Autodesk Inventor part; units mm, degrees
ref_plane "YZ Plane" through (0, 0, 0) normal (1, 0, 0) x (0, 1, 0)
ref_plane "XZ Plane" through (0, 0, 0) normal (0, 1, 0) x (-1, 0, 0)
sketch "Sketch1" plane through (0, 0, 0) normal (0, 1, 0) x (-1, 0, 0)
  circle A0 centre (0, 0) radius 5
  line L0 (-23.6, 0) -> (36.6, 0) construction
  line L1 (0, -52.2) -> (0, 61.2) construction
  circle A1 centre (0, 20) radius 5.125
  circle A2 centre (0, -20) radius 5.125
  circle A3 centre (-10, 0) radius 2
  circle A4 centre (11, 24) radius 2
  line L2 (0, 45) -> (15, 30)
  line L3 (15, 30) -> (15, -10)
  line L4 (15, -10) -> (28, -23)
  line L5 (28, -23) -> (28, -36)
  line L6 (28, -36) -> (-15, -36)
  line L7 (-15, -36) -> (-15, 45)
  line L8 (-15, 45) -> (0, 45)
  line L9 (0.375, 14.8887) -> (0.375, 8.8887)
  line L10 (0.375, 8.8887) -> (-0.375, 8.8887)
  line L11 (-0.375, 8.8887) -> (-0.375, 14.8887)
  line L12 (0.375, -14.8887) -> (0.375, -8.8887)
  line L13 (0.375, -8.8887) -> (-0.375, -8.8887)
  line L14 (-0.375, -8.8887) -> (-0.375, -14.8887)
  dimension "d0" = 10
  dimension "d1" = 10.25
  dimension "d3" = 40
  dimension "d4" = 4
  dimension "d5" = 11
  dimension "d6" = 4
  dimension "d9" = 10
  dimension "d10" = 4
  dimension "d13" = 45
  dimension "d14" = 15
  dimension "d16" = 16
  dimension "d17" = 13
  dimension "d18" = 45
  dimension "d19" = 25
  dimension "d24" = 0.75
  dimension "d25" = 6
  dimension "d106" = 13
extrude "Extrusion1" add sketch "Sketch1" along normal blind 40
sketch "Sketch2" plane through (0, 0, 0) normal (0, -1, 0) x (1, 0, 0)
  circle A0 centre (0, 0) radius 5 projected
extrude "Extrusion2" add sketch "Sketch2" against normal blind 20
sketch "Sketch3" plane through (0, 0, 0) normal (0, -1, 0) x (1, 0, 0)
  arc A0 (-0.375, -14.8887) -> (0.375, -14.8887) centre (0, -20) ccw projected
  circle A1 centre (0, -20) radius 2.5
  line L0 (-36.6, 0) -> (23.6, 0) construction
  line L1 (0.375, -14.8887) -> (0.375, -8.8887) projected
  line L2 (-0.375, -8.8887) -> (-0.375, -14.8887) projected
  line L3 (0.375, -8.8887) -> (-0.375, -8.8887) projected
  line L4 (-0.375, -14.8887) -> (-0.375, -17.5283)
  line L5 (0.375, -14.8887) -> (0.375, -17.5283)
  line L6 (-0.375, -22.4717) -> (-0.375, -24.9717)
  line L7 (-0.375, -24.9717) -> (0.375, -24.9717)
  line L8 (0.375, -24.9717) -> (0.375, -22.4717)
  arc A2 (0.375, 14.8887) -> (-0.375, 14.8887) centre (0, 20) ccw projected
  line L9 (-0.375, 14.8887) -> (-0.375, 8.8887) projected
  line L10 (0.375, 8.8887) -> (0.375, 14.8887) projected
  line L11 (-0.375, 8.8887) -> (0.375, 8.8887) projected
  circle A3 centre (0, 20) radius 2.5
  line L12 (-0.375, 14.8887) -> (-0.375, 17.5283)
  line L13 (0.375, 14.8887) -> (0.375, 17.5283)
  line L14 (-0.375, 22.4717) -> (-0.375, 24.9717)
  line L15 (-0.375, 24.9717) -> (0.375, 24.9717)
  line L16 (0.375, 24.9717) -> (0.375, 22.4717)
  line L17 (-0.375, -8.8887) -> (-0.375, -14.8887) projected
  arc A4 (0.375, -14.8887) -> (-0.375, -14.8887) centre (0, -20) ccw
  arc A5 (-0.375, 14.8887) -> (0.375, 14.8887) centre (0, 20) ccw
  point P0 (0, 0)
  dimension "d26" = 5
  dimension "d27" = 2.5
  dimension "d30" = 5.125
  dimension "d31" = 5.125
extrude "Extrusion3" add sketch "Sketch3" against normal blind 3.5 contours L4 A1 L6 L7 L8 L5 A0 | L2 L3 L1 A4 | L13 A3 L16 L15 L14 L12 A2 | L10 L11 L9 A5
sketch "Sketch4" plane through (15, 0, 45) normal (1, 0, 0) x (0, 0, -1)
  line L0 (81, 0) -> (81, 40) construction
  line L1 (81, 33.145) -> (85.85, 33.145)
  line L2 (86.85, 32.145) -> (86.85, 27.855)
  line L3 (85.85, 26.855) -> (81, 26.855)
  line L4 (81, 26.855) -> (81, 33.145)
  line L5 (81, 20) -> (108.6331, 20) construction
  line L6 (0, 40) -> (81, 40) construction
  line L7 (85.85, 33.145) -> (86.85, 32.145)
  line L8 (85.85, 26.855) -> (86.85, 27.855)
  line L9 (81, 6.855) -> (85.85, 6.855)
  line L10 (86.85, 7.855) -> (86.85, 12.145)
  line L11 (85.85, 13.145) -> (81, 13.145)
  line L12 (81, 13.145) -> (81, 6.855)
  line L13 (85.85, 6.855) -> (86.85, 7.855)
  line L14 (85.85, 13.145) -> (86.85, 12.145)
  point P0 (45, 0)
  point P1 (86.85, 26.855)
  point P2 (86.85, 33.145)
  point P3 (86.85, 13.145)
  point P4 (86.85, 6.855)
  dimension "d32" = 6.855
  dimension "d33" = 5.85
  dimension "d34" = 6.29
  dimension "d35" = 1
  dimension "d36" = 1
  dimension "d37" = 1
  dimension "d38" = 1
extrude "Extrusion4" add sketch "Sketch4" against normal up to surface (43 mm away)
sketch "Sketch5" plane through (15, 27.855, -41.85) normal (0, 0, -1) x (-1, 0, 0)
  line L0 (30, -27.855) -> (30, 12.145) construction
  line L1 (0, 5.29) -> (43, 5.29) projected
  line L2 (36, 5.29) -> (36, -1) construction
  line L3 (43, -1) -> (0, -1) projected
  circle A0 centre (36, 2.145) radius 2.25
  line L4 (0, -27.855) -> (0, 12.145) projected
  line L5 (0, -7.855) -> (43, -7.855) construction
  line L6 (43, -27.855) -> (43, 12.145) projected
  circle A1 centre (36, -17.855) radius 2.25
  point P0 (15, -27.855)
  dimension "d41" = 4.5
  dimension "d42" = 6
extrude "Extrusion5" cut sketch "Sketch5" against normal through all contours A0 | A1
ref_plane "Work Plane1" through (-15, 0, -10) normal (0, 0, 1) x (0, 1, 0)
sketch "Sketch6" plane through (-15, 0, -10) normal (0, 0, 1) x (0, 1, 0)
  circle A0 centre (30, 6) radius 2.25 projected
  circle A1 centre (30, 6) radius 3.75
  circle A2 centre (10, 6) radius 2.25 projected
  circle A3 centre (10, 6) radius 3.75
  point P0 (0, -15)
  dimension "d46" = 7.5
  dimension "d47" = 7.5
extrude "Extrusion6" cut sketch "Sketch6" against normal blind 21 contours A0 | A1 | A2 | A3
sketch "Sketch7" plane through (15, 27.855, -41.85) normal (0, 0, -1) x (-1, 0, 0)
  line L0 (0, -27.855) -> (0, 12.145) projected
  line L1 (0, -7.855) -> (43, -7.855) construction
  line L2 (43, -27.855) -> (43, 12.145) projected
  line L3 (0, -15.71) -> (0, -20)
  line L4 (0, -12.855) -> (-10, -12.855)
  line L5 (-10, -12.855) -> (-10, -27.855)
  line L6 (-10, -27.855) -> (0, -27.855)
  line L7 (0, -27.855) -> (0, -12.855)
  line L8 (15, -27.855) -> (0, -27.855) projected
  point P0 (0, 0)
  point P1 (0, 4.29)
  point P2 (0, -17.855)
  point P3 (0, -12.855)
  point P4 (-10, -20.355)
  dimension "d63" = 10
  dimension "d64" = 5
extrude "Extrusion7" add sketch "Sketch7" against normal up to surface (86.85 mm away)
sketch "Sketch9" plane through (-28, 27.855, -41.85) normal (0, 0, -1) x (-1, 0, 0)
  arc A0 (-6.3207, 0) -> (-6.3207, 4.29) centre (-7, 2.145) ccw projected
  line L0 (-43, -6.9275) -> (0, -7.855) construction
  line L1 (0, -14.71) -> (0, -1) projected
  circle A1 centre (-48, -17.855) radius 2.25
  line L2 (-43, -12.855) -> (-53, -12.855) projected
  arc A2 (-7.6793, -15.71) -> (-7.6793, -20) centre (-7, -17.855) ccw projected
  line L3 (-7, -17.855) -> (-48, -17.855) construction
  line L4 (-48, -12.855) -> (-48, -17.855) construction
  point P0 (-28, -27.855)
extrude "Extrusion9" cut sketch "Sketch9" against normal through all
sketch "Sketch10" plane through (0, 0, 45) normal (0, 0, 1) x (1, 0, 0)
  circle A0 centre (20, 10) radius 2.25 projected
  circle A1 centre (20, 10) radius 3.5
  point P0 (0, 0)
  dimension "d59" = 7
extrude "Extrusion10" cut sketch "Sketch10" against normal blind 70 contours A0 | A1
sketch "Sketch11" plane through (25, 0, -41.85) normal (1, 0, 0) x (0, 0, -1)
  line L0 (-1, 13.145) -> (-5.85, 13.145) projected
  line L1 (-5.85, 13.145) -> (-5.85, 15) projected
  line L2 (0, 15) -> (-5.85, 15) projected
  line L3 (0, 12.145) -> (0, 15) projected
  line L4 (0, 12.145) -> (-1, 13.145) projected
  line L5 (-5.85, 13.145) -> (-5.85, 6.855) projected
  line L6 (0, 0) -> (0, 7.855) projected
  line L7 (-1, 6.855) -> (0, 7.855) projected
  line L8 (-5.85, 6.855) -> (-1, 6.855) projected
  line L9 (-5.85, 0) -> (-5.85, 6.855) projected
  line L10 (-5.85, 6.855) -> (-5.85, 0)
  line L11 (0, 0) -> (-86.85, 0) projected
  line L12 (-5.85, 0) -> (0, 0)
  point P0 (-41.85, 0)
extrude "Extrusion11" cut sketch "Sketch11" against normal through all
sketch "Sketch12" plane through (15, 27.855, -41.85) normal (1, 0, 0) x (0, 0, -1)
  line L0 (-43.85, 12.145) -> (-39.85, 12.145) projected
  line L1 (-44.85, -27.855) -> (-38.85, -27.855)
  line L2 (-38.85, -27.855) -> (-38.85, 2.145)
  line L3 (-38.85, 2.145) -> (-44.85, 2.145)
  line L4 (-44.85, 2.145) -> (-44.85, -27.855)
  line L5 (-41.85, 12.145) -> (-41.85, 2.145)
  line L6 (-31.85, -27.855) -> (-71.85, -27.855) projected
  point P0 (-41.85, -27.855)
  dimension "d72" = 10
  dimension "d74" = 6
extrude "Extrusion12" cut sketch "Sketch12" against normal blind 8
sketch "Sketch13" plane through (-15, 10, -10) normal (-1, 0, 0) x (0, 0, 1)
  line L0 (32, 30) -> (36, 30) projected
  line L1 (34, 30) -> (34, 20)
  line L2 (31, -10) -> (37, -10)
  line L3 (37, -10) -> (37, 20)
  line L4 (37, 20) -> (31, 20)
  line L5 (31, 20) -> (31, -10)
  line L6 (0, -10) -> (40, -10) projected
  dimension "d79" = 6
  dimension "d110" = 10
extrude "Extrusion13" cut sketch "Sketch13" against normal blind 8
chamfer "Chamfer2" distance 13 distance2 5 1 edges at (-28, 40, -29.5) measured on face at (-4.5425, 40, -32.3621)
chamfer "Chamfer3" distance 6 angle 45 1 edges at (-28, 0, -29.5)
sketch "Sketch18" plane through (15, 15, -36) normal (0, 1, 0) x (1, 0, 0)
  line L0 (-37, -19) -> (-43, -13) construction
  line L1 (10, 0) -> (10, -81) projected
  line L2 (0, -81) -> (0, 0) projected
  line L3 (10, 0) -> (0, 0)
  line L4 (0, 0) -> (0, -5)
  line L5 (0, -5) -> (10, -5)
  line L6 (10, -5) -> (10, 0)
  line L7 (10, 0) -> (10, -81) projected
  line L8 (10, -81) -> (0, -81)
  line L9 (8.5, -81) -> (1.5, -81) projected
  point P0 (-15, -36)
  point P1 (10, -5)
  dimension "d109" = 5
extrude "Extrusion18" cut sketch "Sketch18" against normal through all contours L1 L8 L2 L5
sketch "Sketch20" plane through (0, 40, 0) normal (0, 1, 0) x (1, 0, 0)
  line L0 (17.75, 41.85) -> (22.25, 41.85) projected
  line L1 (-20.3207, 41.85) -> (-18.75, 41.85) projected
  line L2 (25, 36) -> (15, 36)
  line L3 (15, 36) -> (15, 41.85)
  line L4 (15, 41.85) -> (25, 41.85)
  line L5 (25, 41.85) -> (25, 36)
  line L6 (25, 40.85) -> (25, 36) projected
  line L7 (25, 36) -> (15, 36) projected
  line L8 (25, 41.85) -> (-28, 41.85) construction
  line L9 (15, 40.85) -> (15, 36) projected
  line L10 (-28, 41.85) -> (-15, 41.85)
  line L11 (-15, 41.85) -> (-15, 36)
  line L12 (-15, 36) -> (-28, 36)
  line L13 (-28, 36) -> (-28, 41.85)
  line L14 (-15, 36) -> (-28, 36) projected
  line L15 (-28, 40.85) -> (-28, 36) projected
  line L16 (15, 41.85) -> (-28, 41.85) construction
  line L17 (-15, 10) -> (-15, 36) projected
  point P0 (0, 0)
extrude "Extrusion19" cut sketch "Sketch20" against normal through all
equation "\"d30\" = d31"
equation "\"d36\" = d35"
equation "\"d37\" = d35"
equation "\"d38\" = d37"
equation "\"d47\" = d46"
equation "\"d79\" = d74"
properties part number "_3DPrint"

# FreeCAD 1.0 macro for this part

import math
import FreeCAD as App
import Part
import Sketcher
Q = App.Units.Quantity


def edges_at(feature, points):
    """Names of the edges that pass closest to the given points."""
    edges = feature.Shape.Edges
    near = lambda p: min(range(len(edges)), key=lambda i: edges[i].distToShape(Part.Vertex(*p))[0])
    return sorted({f"Edge{near(p) + 1}" for p in points})

doc = App.newDocument("Part")
params = doc.addObject("Spreadsheet::Sheet", "Params")
for row, (alias, value) in enumerate([
    ("sketch1_diameter", "4 mm"),
    ("sketch1_diameter2", "10 mm"),
    ("sketch1_width", "15 mm"),
    ("sketch1_height", "13 mm"),
    ("sketch1_height2", "40 mm"),
    ("pad1_length", "40 mm"),
    ("sketch2_diameter", "10 mm"),
    ("pad2_length", "20 mm"),
    ("sketch3_radius", "2.5 mm"),
    ("sketch3_height", "2.5 mm"),
    ("sketch3_height2", "6 mm"),
    ("sketch3_width", "0.75 mm"),
    ("pad3_length", "3.5 mm"),
    ("sketch4_width", "6.29 mm"),
    ("pad4_length", "43 mm"),
    ("sketch5_diameter", "4.5 mm"),
    ("sketch6_diameter", "7.5 mm"),
    ("pocket2_length", "21 mm"),
    ("sketch7_width", "10 mm"),
    ("sketch7_height", "15 mm"),
    ("pad5_length", "86.85 mm"),
    ("sketch8_diameter", "4.5 mm"),
    ("sketch9_diameter", "7 mm"),
    ("pocket4_length", "70 mm"),
    ("sketch10_height", "4.85 mm"),
    ("sketch11_height", "6 mm"),
    ("sketch11_width", "30 mm"),
    ("pocket6_length", "8 mm"),
    ("sketch12_height", "6 mm"),
    ("sketch12_width", "30 mm"),
    ("pocket7_length", "8 mm"),
    ("chamfer_size", "13 mm"),
    ("chamfer_size2", "5 mm"),
    ("chamfer2_size", "6 mm"),
    ("sketch13_width", "10 mm"),
    ("sketch13_height", "76 mm"),
    ("sketch14_width", "10 mm"),
    ("sketch14_width2", "13 mm"),
    ("sketch14_height", "5.85 mm"),
], start=1):
    params.set(f"A{row}", alias)
    params.set(f"B{row}", "=" + value)
    params.setAlias(f"B{row}", alias)

body = doc.addObject("PartDesign::Body", "Body")

sketch1 = doc.addObject("Sketcher::SketchObject", "Sketch")
body.addObject(sketch1)
sketch1.AttachmentSupport = (doc.XZ_Plane, [""])
sketch1.MapMode = "FlatFace"
sketch1.addGeometry(Part.LineSegment(App.Vector(-15, 30, 0), App.Vector(0, 45, 0)), False)
sketch1.addGeometry(Part.LineSegment(App.Vector(0, 45, 0), App.Vector(15, 45, 0)), False)
sketch1.addGeometry(Part.LineSegment(App.Vector(15, 45, 0), App.Vector(15, -36, 0)), False)
sketch1.addGeometry(Part.LineSegment(App.Vector(15, -36, 0), App.Vector(-28, -36, 0)), False)
sketch1.addGeometry(Part.LineSegment(App.Vector(-28, -36, 0), App.Vector(-28, -23, 0)), False)
sketch1.addGeometry(Part.LineSegment(App.Vector(-28, -23, 0), App.Vector(-15, -10, 0)), False)
sketch1.addGeometry(Part.LineSegment(App.Vector(-15, -10, 0), App.Vector(-15, 30, 0)), False)
sketch1.addGeometry(Part.ArcOfCircle(Part.Circle(App.Vector(0, -20, 0), App.Vector(0, 0, 1), 5.1), math.radians(94), math.radians(446)), False)
sketch1.addGeometry(Part.LineSegment(App.Vector(0.4, -14.9, 0), App.Vector(0.4, -8.9, 0)), False)
sketch1.addGeometry(Part.LineSegment(App.Vector(0.4, -8.9, 0), App.Vector(-0.4, -8.9, 0)), False)
sketch1.addGeometry(Part.LineSegment(App.Vector(-0.4, -8.9, 0), App.Vector(-0.4, -14.9, 0)), False)
sketch1.addGeometry(Part.Circle(App.Vector(10, 0, 0), App.Vector(0, 0, 1), 2), False)
sketch1.addGeometry(Part.Circle(App.Vector(0, 0, 0), App.Vector(0, 0, 1), 5), False)
sketch1.addGeometry(Part.ArcOfCircle(Part.Circle(App.Vector(0, 20, 0), App.Vector(0, 0, 1), 5.1), math.radians(-86), math.radians(266)), False)
sketch1.addGeometry(Part.LineSegment(App.Vector(-0.4, 14.9, 0), App.Vector(-0.4, 8.9, 0)), False)
sketch1.addGeometry(Part.LineSegment(App.Vector(-0.4, 8.9, 0), App.Vector(0.4, 8.9, 0)), False)
sketch1.addGeometry(Part.LineSegment(App.Vector(0.4, 8.9, 0), App.Vector(0.4, 14.9, 0)), False)
sketch1.addGeometry(Part.Circle(App.Vector(-11, 24, 0), App.Vector(0, 0, 1), 2), False)
sketch1.addConstraint(Sketcher.Constraint("Coincident", 0, 2, 1, 1))
sketch1.addConstraint(Sketcher.Constraint("Coincident", 1, 2, 2, 1))
sketch1.addConstraint(Sketcher.Constraint("Coincident", 2, 2, 3, 1))
sketch1.addConstraint(Sketcher.Constraint("Coincident", 3, 2, 4, 1))
sketch1.addConstraint(Sketcher.Constraint("Coincident", 4, 2, 5, 1))
sketch1.addConstraint(Sketcher.Constraint("Coincident", 5, 2, 6, 1))
sketch1.addConstraint(Sketcher.Constraint("Coincident", 6, 2, 0, 1))
sketch1.addConstraint(Sketcher.Constraint("Coincident", 7, 2, 8, 1))
sketch1.addConstraint(Sketcher.Constraint("Coincident", 8, 2, 9, 1))
sketch1.addConstraint(Sketcher.Constraint("Coincident", 9, 2, 10, 1))
sketch1.addConstraint(Sketcher.Constraint("Coincident", 10, 2, 7, 1))
sketch1.addConstraint(Sketcher.Constraint("Coincident", 13, 2, 14, 1))
sketch1.addConstraint(Sketcher.Constraint("Coincident", 14, 2, 15, 1))
sketch1.addConstraint(Sketcher.Constraint("Coincident", 15, 2, 16, 1))
sketch1.addConstraint(Sketcher.Constraint("Coincident", 16, 2, 13, 1))
sketch1.addConstraint(Sketcher.Constraint("Horizontal", 1))
sketch1.addConstraint(Sketcher.Constraint("Vertical", 2))
sketch1.addConstraint(Sketcher.Constraint("Horizontal", 3))
sketch1.addConstraint(Sketcher.Constraint("Vertical", 4))
sketch1.addConstraint(Sketcher.Constraint("Vertical", 6))
sketch1.addConstraint(Sketcher.Constraint("Vertical", 8))
sketch1.addConstraint(Sketcher.Constraint("Horizontal", 9))
sketch1.addConstraint(Sketcher.Constraint("Vertical", 10))
sketch1.addConstraint(Sketcher.Constraint("Vertical", 14))
sketch1.addConstraint(Sketcher.Constraint("Horizontal", 15))
sketch1.addConstraint(Sketcher.Constraint("Vertical", 16))
sketch1.addConstraint(Sketcher.Constraint("Coincident", 12, 3, -1, 1))
sketch1.addConstraint(Sketcher.Constraint("Equal", 7, 13))
sketch1.addConstraint(Sketcher.Constraint("Equal", 11, 17))
sketch1.addConstraint(Sketcher.Constraint("Symmetric", 7, 3, 13, 3, -1, 1))
sketch1.addConstraint(Sketcher.Constraint("Symmetric", 8, 2, 14, 2, -1, 1))
sketch1.addConstraint(Sketcher.Constraint("Symmetric", 7, 2, 10, 2, -2))
sketch1.addConstraint(Sketcher.Constraint("PointOnObject", 11, 3, -1))
sketch1.addConstraint(Sketcher.Constraint("PointOnObject", 0, 2, -2))
sketch1.addConstraint(Sketcher.Constraint("Parallel", 0, 5))
sketch1.addConstraint(Sketcher.Constraint("Horizontal", 13, 2, 16, 2))
sketch1.addConstraint(Sketcher.Constraint("Diameter", 11, Q("4 mm")))
sketch1.addConstraint(Sketcher.Constraint("Diameter", 12, Q("10 mm")))
sketch1.addConstraint(Sketcher.Constraint("DistanceX", 1, 1, 1, 2, Q("15 mm")))
sketch1.addConstraint(Sketcher.Constraint("DistanceY", 4, 1, 4, 2, Q("13 mm")))
sketch1.addConstraint(Sketcher.Constraint("DistanceY", 6, 1, 6, 2, Q("40 mm")))
sketch1.addConstraint(Sketcher.Constraint("DistanceY", 8, 1, 8, 2, Q("6 mm")))
sketch1.addConstraint(Sketcher.Constraint("Angle", 0, Q("45 deg")))
sketch1.addConstraint(Sketcher.Constraint("DistanceX", -1, 1, 11, 3, Q("10 mm")))
sketch1.addConstraint(Sketcher.Constraint("DistanceX", 17, 3, -1, 1, Q("11 mm")))
sketch1.addConstraint(Sketcher.Constraint("DistanceY", -1, 1, 0, 2, Q("45 mm")))
sketch1.addConstraint(Sketcher.Constraint("DistanceX", 5, 2, -1, 1, Q("15 mm")))
sketch1.addConstraint(Sketcher.Constraint("Radius", 7, Q("5.125 mm")))
sketch1.addConstraint(Sketcher.Constraint("DistanceY", 7, 3, 13, 3, Q("40 mm")))
sketch1.addConstraint(Sketcher.Constraint("DistanceY", 13, 3, 17, 3, Q("4 mm")))
sketch1.addConstraint(Sketcher.Constraint("DistanceY", 2, 2, 7, 3, Q("16 mm")))
sketch1.addConstraint(Sketcher.Constraint("DistanceX", 9, 2, 9, 1, Q("0.75 mm")))
sketch1.setExpression("Constraints[36]", "Params.sketch1_diameter")
sketch1.setExpression("Constraints[37]", "Params.sketch1_diameter2")
sketch1.setExpression("Constraints[38]", "Params.sketch1_width")
sketch1.setExpression("Constraints[39]", "Params.sketch1_height")
sketch1.setExpression("Constraints[40]", "Params.sketch1_height2")
pad1 = doc.addObject("PartDesign::Pad", "Pad")
body.addObject(pad1)
pad1.Profile = sketch1
pad1.setExpression("Length", "Params.pad1_length")
pad1.Reversed = True

sketch2 = doc.addObject("Sketcher::SketchObject", "Sketch001")
body.addObject(sketch2)
sketch2.AttachmentSupport = (doc.XZ_Plane, [""])
sketch2.MapMode = "FlatFace"
sketch2.addGeometry(Part.Circle(App.Vector(0, 0, 0), App.Vector(0, 0, 1), 5), False)
sketch2.addConstraint(Sketcher.Constraint("Coincident", 0, 3, -1, 1))
sketch2.addConstraint(Sketcher.Constraint("Diameter", 0, Q("10 mm")))
sketch2.setExpression("Constraints[1]", "Params.sketch2_diameter")
pad2 = doc.addObject("PartDesign::Pad", "Pad001")
body.addObject(pad2)
pad2.Profile = sketch2
pad2.setExpression("Length", "Params.pad2_length")
pad2.Reversed = True

sketch3 = doc.addObject("Sketcher::SketchObject", "Sketch002")
body.addObject(sketch3)
sketch3.AttachmentSupport = (doc.XZ_Plane, [""])
sketch3.MapMode = "FlatFace"
sketch3.addGeometry(Part.LineSegment(App.Vector(-0.4, -17.5, 0), App.Vector(-0.4, -14.9, 0)), False)
sketch3.addGeometry(Part.ArcOfCircle(Part.Circle(App.Vector(0, -20, 0), App.Vector(0, 0, 1), 5.1), math.radians(94), math.radians(446)), False)
sketch3.addGeometry(Part.LineSegment(App.Vector(0.4, -14.9, 0), App.Vector(0.4, -17.5, 0)), False)
sketch3.addGeometry(Part.ArcOfCircle(Part.Circle(App.Vector(0, -20, 0), App.Vector(0, 0, 1), 2.5), math.radians(-81), math.radians(81)), False)
sketch3.addGeometry(Part.LineSegment(App.Vector(0.4, -22.5, 0), App.Vector(0.4, -25, 0)), False)
sketch3.addGeometry(Part.LineSegment(App.Vector(0.4, -25, 0), App.Vector(-0.4, -25, 0)), False)
sketch3.addGeometry(Part.LineSegment(App.Vector(-0.4, -25, 0), App.Vector(-0.4, -22.5, 0)), False)
sketch3.addGeometry(Part.ArcOfCircle(Part.Circle(App.Vector(0, -20, 0), App.Vector(0, 0, 1), 2.5), math.radians(99), math.radians(261)), False)
sketch3.addGeometry(Part.LineSegment(App.Vector(-0.4, -8.9, 0), App.Vector(-0.4, -14.9, 0)), False)
sketch3.addGeometry(Part.ArcOfCircle(Part.Circle(App.Vector(0, -20, 0), App.Vector(0, 0, 1), 5.1), math.radians(85.8), math.radians(94.2)), False)
sketch3.addGeometry(Part.LineSegment(App.Vector(0.4, -14.9, 0), App.Vector(0.4, -8.9, 0)), False)
sketch3.addGeometry(Part.LineSegment(App.Vector(0.4, -8.9, 0), App.Vector(-0.4, -8.9, 0)), False)
sketch3.addGeometry(Part.LineSegment(App.Vector(0.4, 17.5, 0), App.Vector(0.4, 14.9, 0)), False)
sketch3.addGeometry(Part.ArcOfCircle(Part.Circle(App.Vector(0, 20, 0), App.Vector(0, 0, 1), 5.1), math.radians(-86), math.radians(266)), False)
sketch3.addGeometry(Part.LineSegment(App.Vector(-0.4, 14.9, 0), App.Vector(-0.4, 17.5, 0)), False)
sketch3.addGeometry(Part.ArcOfCircle(Part.Circle(App.Vector(0, 20, 0), App.Vector(0, 0, 1), 2.5), math.radians(99), math.radians(261)), False)
sketch3.addGeometry(Part.LineSegment(App.Vector(-0.4, 22.5, 0), App.Vector(-0.4, 25, 0)), False)
sketch3.addGeometry(Part.LineSegment(App.Vector(-0.4, 25, 0), App.Vector(0.4, 25, 0)), False)
sketch3.addGeometry(Part.LineSegment(App.Vector(0.4, 25, 0), App.Vector(0.4, 22.5, 0)), False)
sketch3.addGeometry(Part.ArcOfCircle(Part.Circle(App.Vector(0, 20, 0), App.Vector(0, 0, 1), 2.5), math.radians(-81), math.radians(81)), False)
sketch3.addGeometry(Part.LineSegment(App.Vector(0.4, 8.9, 0), App.Vector(0.4, 14.9, 0)), False)
sketch3.addGeometry(Part.ArcOfCircle(Part.Circle(App.Vector(0, 20, 0), App.Vector(0, 0, 1), 5.1), math.radians(-94.2), math.radians(-85.8)), False)
sketch3.addGeometry(Part.LineSegment(App.Vector(-0.4, 14.9, 0), App.Vector(-0.4, 8.9, 0)), False)
sketch3.addGeometry(Part.LineSegment(App.Vector(-0.4, 8.9, 0), App.Vector(0.4, 8.9, 0)), False)
sketch3.addConstraint(Sketcher.Constraint("Coincident", 0, 2, 1, 1))
sketch3.addConstraint(Sketcher.Constraint("Coincident", 1, 2, 2, 1))
sketch3.addConstraint(Sketcher.Constraint("Coincident", 2, 2, 3, 2))
sketch3.addConstraint(Sketcher.Constraint("Coincident", 3, 1, 4, 1))
sketch3.addConstraint(Sketcher.Constraint("Coincident", 4, 2, 5, 1))
sketch3.addConstraint(Sketcher.Constraint("Coincident", 5, 2, 6, 1))
sketch3.addConstraint(Sketcher.Constraint("Coincident", 6, 2, 7, 2))
sketch3.addConstraint(Sketcher.Constraint("Coincident", 7, 1, 0, 1))
sketch3.addConstraint(Sketcher.Constraint("Coincident", 8, 2, 9, 2))
sketch3.addConstraint(Sketcher.Constraint("Coincident", 9, 1, 10, 1))
sketch3.addConstraint(Sketcher.Constraint("Coincident", 10, 2, 11, 1))
sketch3.addConstraint(Sketcher.Constraint("Coincident", 11, 2, 8, 1))
sketch3.addConstraint(Sketcher.Constraint("Coincident", 12, 2, 13, 1))
sketch3.addConstraint(Sketcher.Constraint("Coincident", 13, 2, 14, 1))
sketch3.addConstraint(Sketcher.Constraint("Coincident", 14, 2, 15, 2))
sketch3.addConstraint(Sketcher.Constraint("Coincident", 15, 1, 16, 1))
sketch3.addConstraint(Sketcher.Constraint("Coincident", 16, 2, 17, 1))
sketch3.addConstraint(Sketcher.Constraint("Coincident", 17, 2, 18, 1))
sketch3.addConstraint(Sketcher.Constraint("Coincident", 18, 2, 19, 2))
sketch3.addConstraint(Sketcher.Constraint("Coincident", 19, 1, 12, 1))
sketch3.addConstraint(Sketcher.Constraint("Coincident", 20, 2, 21, 2))
sketch3.addConstraint(Sketcher.Constraint("Coincident", 21, 1, 22, 1))
sketch3.addConstraint(Sketcher.Constraint("Coincident", 22, 2, 23, 1))
sketch3.addConstraint(Sketcher.Constraint("Coincident", 23, 2, 20, 1))
sketch3.addConstraint(Sketcher.Constraint("Vertical", 0))
sketch3.addConstraint(Sketcher.Constraint("Vertical", 2))
sketch3.addConstraint(Sketcher.Constraint("Vertical", 4))
sketch3.addConstraint(Sketcher.Constraint("Horizontal", 5))
sketch3.addConstraint(Sketcher.Constraint("Vertical", 6))
sketch3.addConstraint(Sketcher.Constraint("Vertical", 8))
sketch3.addConstraint(Sketcher.Constraint("Vertical", 10))
sketch3.addConstraint(Sketcher.Constraint("Horizontal", 11))
sketch3.addConstraint(Sketcher.Constraint("Vertical", 12))
sketch3.addConstraint(Sketcher.Constraint("Vertical", 14))
sketch3.addConstraint(Sketcher.Constraint("Vertical", 16))
sketch3.addConstraint(Sketcher.Constraint("Horizontal", 17))
sketch3.addConstraint(Sketcher.Constraint("Vertical", 18))
sketch3.addConstraint(Sketcher.Constraint("Vertical", 20))
sketch3.addConstraint(Sketcher.Constraint("Vertical", 22))
sketch3.addConstraint(Sketcher.Constraint("Horizontal", 23))
sketch3.addConstraint(Sketcher.Constraint("Coincident", 3, 3, 1, 3))
sketch3.addConstraint(Sketcher.Constraint("Coincident", 7, 3, 1, 3))
sketch3.addConstraint(Sketcher.Constraint("Coincident", 9, 3, 1, 3))
sketch3.addConstraint(Sketcher.Constraint("Coincident", 15, 3, 13, 3))
sketch3.addConstraint(Sketcher.Constraint("Coincident", 19, 3, 13, 3))
sketch3.addConstraint(Sketcher.Constraint("Coincident", 21, 3, 13, 3))
sketch3.addConstraint(Sketcher.Constraint("Coincident", 8, 2, 0, 2))
sketch3.addConstraint(Sketcher.Constraint("Coincident", 20, 2, 12, 2))
sketch3.addConstraint(Sketcher.Constraint("Equal", 3, 7))
sketch3.addConstraint(Sketcher.Constraint("Equal", 9, 13))
sketch3.addConstraint(Sketcher.Constraint("Equal", 7, 15))
sketch3.addConstraint(Sketcher.Constraint("Equal", 15, 19))
sketch3.addConstraint(Sketcher.Constraint("Symmetric", 1, 3, 13, 3, -1, 1))
sketch3.addConstraint(Sketcher.Constraint("Symmetric", 4, 2, 16, 2, -1, 1))
sketch3.addConstraint(Sketcher.Constraint("Symmetric", 10, 2, 22, 2, -1, 1))
sketch3.addConstraint(Sketcher.Constraint("Symmetric", 0, 2, 1, 2, -2))
sketch3.addConstraint(Sketcher.Constraint("Horizontal", 3, 1, 6, 2))
sketch3.addConstraint(Sketcher.Constraint("Horizontal", 8, 2, 9, 1))
sketch3.addConstraint(Sketcher.Constraint("Horizontal", 12, 2, 13, 2))
sketch3.addConstraint(Sketcher.Constraint("Horizontal", 15, 1, 18, 2))
sketch3.addConstraint(Sketcher.Constraint("Horizontal", 20, 2, 21, 1))
sketch3.addConstraint(Sketcher.Constraint("Vertical", 2, 2, 3, 1))
sketch3.addConstraint(Sketcher.Constraint("Radius", 3, Q("2.5 mm")))
sketch3.addConstraint(Sketcher.Constraint("DistanceY", 4, 2, 4, 1, Q("2.5 mm")))
sketch3.addConstraint(Sketcher.Constraint("Radius", 1, Q("5.125 mm")))
sketch3.addConstraint(Sketcher.Constraint("DistanceY", 8, 2, 8, 1, Q("6 mm")))
sketch3.addConstraint(Sketcher.Constraint("DistanceY", 1, 3, -1, 1, Q("20 mm")))
sketch3.addConstraint(Sketcher.Constraint("DistanceX", 5, 2, 5, 1, Q("0.75 mm")))
sketch3.setExpression("Constraints[62]", "Params.sketch3_radius")
sketch3.setExpression("Constraints[63]", "Params.sketch3_height")
sketch3.setExpression("Constraints[65]", "Params.sketch3_height2")
sketch3.setExpression("Constraints[67]", "Params.sketch3_width")
pad3 = doc.addObject("PartDesign::Pad", "Pad002")
body.addObject(pad3)
pad3.Profile = sketch3
pad3.setExpression("Length", "Params.pad3_length")
pad3.Reversed = True

sketch4 = doc.addObject("Sketcher::SketchObject", "Sketch003")
body.addObject(sketch4)
sketch4.AttachmentSupport = (doc.YZ_Plane, [""])
sketch4.MapMode = "FlatFace"
sketch4.AttachmentOffset = App.Placement(App.Vector(0, 0, 15), App.Rotation())
sketch4.addGeometry(Part.LineSegment(App.Vector(33.1, -40.9, 0), App.Vector(33.1, -36, 0)), False)
sketch4.addGeometry(Part.LineSegment(App.Vector(33.1, -36, 0), App.Vector(26.9, -36, 0)), False)
sketch4.addGeometry(Part.LineSegment(App.Vector(26.9, -36, 0), App.Vector(26.9, -40.9, 0)), False)
sketch4.addGeometry(Part.LineSegment(App.Vector(26.9, -40.9, 0), App.Vector(27.9, -41.9, 0)), False)
sketch4.addGeometry(Part.LineSegment(App.Vector(27.9, -41.9, 0), App.Vector(32.1, -41.9, 0)), False)
sketch4.addGeometry(Part.LineSegment(App.Vector(32.1, -41.9, 0), App.Vector(33.1, -40.9, 0)), False)
sketch4.addGeometry(Part.LineSegment(App.Vector(13.1, -36, 0), App.Vector(6.9, -36, 0)), False)
sketch4.addGeometry(Part.LineSegment(App.Vector(6.9, -36, 0), App.Vector(6.9, -40.9, 0)), False)
sketch4.addGeometry(Part.LineSegment(App.Vector(6.9, -40.9, 0), App.Vector(7.9, -41.9, 0)), False)
sketch4.addGeometry(Part.LineSegment(App.Vector(7.9, -41.9, 0), App.Vector(12.1, -41.9, 0)), False)
sketch4.addGeometry(Part.LineSegment(App.Vector(12.1, -41.9, 0), App.Vector(13.1, -40.9, 0)), False)
sketch4.addGeometry(Part.LineSegment(App.Vector(13.1, -40.9, 0), App.Vector(13.1, -36, 0)), False)
sketch4.addConstraint(Sketcher.Constraint("Coincident", 0, 2, 1, 1))
sketch4.addConstraint(Sketcher.Constraint("Coincident", 1, 2, 2, 1))
sketch4.addConstraint(Sketcher.Constraint("Coincident", 2, 2, 3, 1))
sketch4.addConstraint(Sketcher.Constraint("Coincident", 3, 2, 4, 1))
sketch4.addConstraint(Sketcher.Constraint("Coincident", 4, 2, 5, 1))
sketch4.addConstraint(Sketcher.Constraint("Coincident", 5, 2, 0, 1))
sketch4.addConstraint(Sketcher.Constraint("Coincident", 6, 2, 7, 1))
sketch4.addConstraint(Sketcher.Constraint("Coincident", 7, 2, 8, 1))
sketch4.addConstraint(Sketcher.Constraint("Coincident", 8, 2, 9, 1))
sketch4.addConstraint(Sketcher.Constraint("Coincident", 9, 2, 10, 1))
sketch4.addConstraint(Sketcher.Constraint("Coincident", 10, 2, 11, 1))
sketch4.addConstraint(Sketcher.Constraint("Coincident", 11, 2, 6, 1))
sketch4.addConstraint(Sketcher.Constraint("Vertical", 0))
sketch4.addConstraint(Sketcher.Constraint("Horizontal", 1))
sketch4.addConstraint(Sketcher.Constraint("Vertical", 2))
sketch4.addConstraint(Sketcher.Constraint("Horizontal", 4))
sketch4.addConstraint(Sketcher.Constraint("Horizontal", 6))
sketch4.addConstraint(Sketcher.Constraint("Vertical", 7))
sketch4.addConstraint(Sketcher.Constraint("Horizontal", 9))
sketch4.addConstraint(Sketcher.Constraint("Vertical", 11))
sketch4.addConstraint(Sketcher.Constraint("Perpendicular", 3, 5))
sketch4.addConstraint(Sketcher.Constraint("Perpendicular", 5, 8))
sketch4.addConstraint(Sketcher.Constraint("Perpendicular", 8, 10))
sketch4.addConstraint(Sketcher.Constraint("Horizontal", 2, 2, 5, 2))
sketch4.addConstraint(Sketcher.Constraint("Horizontal", 1, 2, 6, 2))
sketch4.addConstraint(Sketcher.Constraint("Horizontal", 5, 2, 7, 2))
sketch4.addConstraint(Sketcher.Constraint("Horizontal", 4, 2, 8, 2))
sketch4.addConstraint(Sketcher.Constraint("Horizontal", 7, 2, 10, 2))
sketch4.addConstraint(Sketcher.Constraint("Equal", 1, 6))
sketch4.addConstraint(Sketcher.Constraint("Equal", 3, 5))
sketch4.addConstraint(Sketcher.Constraint("DistanceX", 2, 2, 3, 2, Q("1 mm")))
sketch4.addConstraint(Sketcher.Constraint("DistanceX", 1, 2, 1, 1, Q("6.29 mm")))
sketch4.addConstraint(Sketcher.Constraint("DistanceY", 3, 2, 1, 2, Q("5.85 mm")))
sketch4.addConstraint(Sketcher.Constraint("DistanceX", -1, 1, 6, 2, Q("6.855 mm")))
sketch4.addConstraint(Sketcher.Constraint("DistanceY", 0, 2, -1, 1, Q("36 mm")))
sketch4.addConstraint(Sketcher.Constraint("DistanceX", 6, 2, 1, 2, Q("20 mm")))
sketch4.setExpression("Constraints[31]", "Params.sketch4_width")
pad4 = doc.addObject("PartDesign::Pad", "Pad003")
body.addObject(pad4)
pad4.Profile = sketch4
pad4.setExpression("Length", "Params.pad4_length")
pad4.Reversed = True

sketch5 = doc.addObject("Sketcher::SketchObject", "Sketch004")
body.addObject(sketch5)
sketch5.AttachmentSupport = (doc.XY_Plane, [""])
sketch5.MapMode = "FlatFace"
sketch5.AttachmentOffset = App.Placement(App.Vector(0, 0, -41.85), App.Rotation())
sketch5.addGeometry(Part.Circle(App.Vector(-21, 30, 0), App.Vector(0, 0, 1), 2.2), False)
sketch5.addGeometry(Part.Circle(App.Vector(-21, 10, 0), App.Vector(0, 0, 1), 2.2), False)
sketch5.addConstraint(Sketcher.Constraint("Equal", 0, 1))
sketch5.addConstraint(Sketcher.Constraint("Vertical", 0, 3, 1, 3))
sketch5.addConstraint(Sketcher.Constraint("Diameter", 0, Q("4.5 mm")))
sketch5.addConstraint(Sketcher.Constraint("DistanceX", 0, 3, -1, 1, Q("21 mm")))
sketch5.addConstraint(Sketcher.Constraint("DistanceY", -1, 1, 0, 3, Q("30 mm")))
sketch5.addConstraint(Sketcher.Constraint("DistanceY", -1, 1, 1, 3, Q("10 mm")))
sketch5.setExpression("Constraints[2]", "Params.sketch5_diameter")
pocket1 = doc.addObject("PartDesign::Pocket", "Pocket")
body.addObject(pocket1)
pocket1.Profile = sketch5
pocket1.Type = "ThroughAll"
pocket1.Reversed = True

sketch6 = doc.addObject("Sketcher::SketchObject", "Sketch005")
body.addObject(sketch6)
sketch6.AttachmentSupport = (doc.XY_Plane, [""])
sketch6.MapMode = "FlatFace"
sketch6.AttachmentOffset = App.Placement(App.Vector(0, 0, -10), App.Rotation())
sketch6.addGeometry(Part.Circle(App.Vector(-21, 30, 0), App.Vector(0, 0, 1), 3.8), False)
sketch6.addGeometry(Part.Circle(App.Vector(-21, 10, 0), App.Vector(0, 0, 1), 3.8), False)
sketch6.addConstraint(Sketcher.Constraint("Equal", 0, 1))
sketch6.addConstraint(Sketcher.Constraint("Vertical", 0, 3, 1, 3))
sketch6.addConstraint(Sketcher.Constraint("Diameter", 0, Q("7.5 mm")))
sketch6.addConstraint(Sketcher.Constraint("DistanceX", 0, 3, -1, 1, Q("21 mm")))
sketch6.addConstraint(Sketcher.Constraint("DistanceY", -1, 1, 0, 3, Q("30 mm")))
sketch6.addConstraint(Sketcher.Constraint("DistanceY", -1, 1, 1, 3, Q("10 mm")))
sketch6.setExpression("Constraints[2]", "Params.sketch6_diameter")
pocket2 = doc.addObject("PartDesign::Pocket", "Pocket001")
body.addObject(pocket2)
pocket2.Profile = sketch6
pocket2.setExpression("Length", "Params.pocket2_length")

sketch7 = doc.addObject("Sketcher::SketchObject", "Sketch006")
body.addObject(sketch7)
sketch7.AttachmentSupport = (doc.XY_Plane, [""])
sketch7.MapMode = "FlatFace"
sketch7.AttachmentOffset = App.Placement(App.Vector(0, 0, -41.85), App.Rotation())
sketch7.addGeometry(Part.LineSegment(App.Vector(25, 0, 0), App.Vector(15, 0, 0)), False)
sketch7.addGeometry(Part.LineSegment(App.Vector(15, 0, 0), App.Vector(15, 15, 0)), False)
sketch7.addGeometry(Part.LineSegment(App.Vector(15, 15, 0), App.Vector(25, 15, 0)), False)
sketch7.addGeometry(Part.LineSegment(App.Vector(25, 15, 0), App.Vector(25, 0, 0)), False)
sketch7.addConstraint(Sketcher.Constraint("Coincident", 0, 2, 1, 1))
sketch7.addConstraint(Sketcher.Constraint("Coincident", 1, 2, 2, 1))
sketch7.addConstraint(Sketcher.Constraint("Coincident", 2, 2, 3, 1))
sketch7.addConstraint(Sketcher.Constraint("Coincident", 3, 2, 0, 1))
sketch7.addConstraint(Sketcher.Constraint("Horizontal", 0))
sketch7.addConstraint(Sketcher.Constraint("Vertical", 1))
sketch7.addConstraint(Sketcher.Constraint("Horizontal", 2))
sketch7.addConstraint(Sketcher.Constraint("Vertical", 3))
sketch7.addConstraint(Sketcher.Constraint("PointOnObject", 0, 2, -1))
sketch7.addConstraint(Sketcher.Constraint("DistanceX", 0, 2, 0, 1, Q("10 mm")))
sketch7.addConstraint(Sketcher.Constraint("DistanceY", 1, 1, 1, 2, Q("15 mm")))
sketch7.addConstraint(Sketcher.Constraint("DistanceX", -1, 1, 0, 2, Q("15 mm")))
sketch7.setExpression("Constraints[9]", "Params.sketch7_width")
sketch7.setExpression("Constraints[10]", "Params.sketch7_height")
pad5 = doc.addObject("PartDesign::Pad", "Pad004")
body.addObject(pad5)
pad5.Profile = sketch7
pad5.setExpression("Length", "Params.pad5_length")

sketch8 = doc.addObject("Sketcher::SketchObject", "Sketch007")
body.addObject(sketch8)
sketch8.AttachmentSupport = (doc.XY_Plane, [""])
sketch8.MapMode = "FlatFace"
sketch8.AttachmentOffset = App.Placement(App.Vector(0, 0, -41.85), App.Rotation())
sketch8.addGeometry(Part.Circle(App.Vector(20, 10, 0), App.Vector(0, 0, 1), 2.2), False)
sketch8.addConstraint(Sketcher.Constraint("Diameter", 0, Q("4.5 mm")))
sketch8.addConstraint(Sketcher.Constraint("DistanceX", -1, 1, 0, 3, Q("20 mm")))
sketch8.addConstraint(Sketcher.Constraint("DistanceY", -1, 1, 0, 3, Q("10 mm")))
sketch8.setExpression("Constraints[0]", "Params.sketch8_diameter")
pocket3 = doc.addObject("PartDesign::Pocket", "Pocket002")
body.addObject(pocket3)
pocket3.Profile = sketch8
pocket3.Type = "ThroughAll"
pocket3.Reversed = True

sketch9 = doc.addObject("Sketcher::SketchObject", "Sketch008")
body.addObject(sketch9)
sketch9.AttachmentSupport = (doc.XY_Plane, [""])
sketch9.MapMode = "FlatFace"
sketch9.AttachmentOffset = App.Placement(App.Vector(0, 0, 45), App.Rotation())
sketch9.addGeometry(Part.Circle(App.Vector(20, 10, 0), App.Vector(0, 0, 1), 3.5), False)
sketch9.addConstraint(Sketcher.Constraint("Diameter", 0, Q("7 mm")))
sketch9.addConstraint(Sketcher.Constraint("DistanceX", -1, 1, 0, 3, Q("20 mm")))
sketch9.addConstraint(Sketcher.Constraint("DistanceY", -1, 1, 0, 3, Q("10 mm")))
sketch9.setExpression("Constraints[0]", "Params.sketch9_diameter")
pocket4 = doc.addObject("PartDesign::Pocket", "Pocket003")
body.addObject(pocket4)
pocket4.Profile = sketch9
pocket4.setExpression("Length", "Params.pocket4_length")

sketch10 = doc.addObject("Sketcher::SketchObject", "Sketch009")
body.addObject(sketch10)
sketch10.AttachmentSupport = (doc.YZ_Plane, [""])
sketch10.MapMode = "FlatFace"
sketch10.AttachmentOffset = App.Placement(App.Vector(0, 0, 25), App.Rotation())
sketch10.addGeometry(Part.LineSegment(App.Vector(6.9, -40.9, 0), App.Vector(6.9, -36, 0)), False)
sketch10.addGeometry(Part.LineSegment(App.Vector(6.9, -36, 0), App.Vector(0, -36, 0)), False)
sketch10.addGeometry(Part.LineSegment(App.Vector(0, -36, 0), App.Vector(0, -41.9, 0)), False)
sketch10.addGeometry(Part.LineSegment(App.Vector(0, -41.9, 0), App.Vector(7.9, -41.9, 0)), False)
sketch10.addGeometry(Part.LineSegment(App.Vector(7.9, -41.9, 0), App.Vector(6.9, -40.9, 0)), False)
sketch10.addGeometry(Part.LineSegment(App.Vector(13.1, -36, 0), App.Vector(13.1, -40.9, 0)), False)
sketch10.addGeometry(Part.LineSegment(App.Vector(13.1, -40.9, 0), App.Vector(12.1, -41.9, 0)), False)
sketch10.addGeometry(Part.LineSegment(App.Vector(12.1, -41.9, 0), App.Vector(15, -41.9, 0)), False)
sketch10.addGeometry(Part.LineSegment(App.Vector(15, -41.9, 0), App.Vector(15, -36, 0)), False)
sketch10.addGeometry(Part.LineSegment(App.Vector(15, -36, 0), App.Vector(13.1, -36, 0)), False)
sketch10.addConstraint(Sketcher.Constraint("Coincident", 0, 2, 1, 1))
sketch10.addConstraint(Sketcher.Constraint("Coincident", 1, 2, 2, 1))
sketch10.addConstraint(Sketcher.Constraint("Coincident", 2, 2, 3, 1))
sketch10.addConstraint(Sketcher.Constraint("Coincident", 3, 2, 4, 1))
sketch10.addConstraint(Sketcher.Constraint("Coincident", 4, 2, 0, 1))
sketch10.addConstraint(Sketcher.Constraint("Coincident", 5, 2, 6, 1))
sketch10.addConstraint(Sketcher.Constraint("Coincident", 6, 2, 7, 1))
sketch10.addConstraint(Sketcher.Constraint("Coincident", 7, 2, 8, 1))
sketch10.addConstraint(Sketcher.Constraint("Coincident", 8, 2, 9, 1))
sketch10.addConstraint(Sketcher.Constraint("Coincident", 9, 2, 5, 1))
sketch10.addConstraint(Sketcher.Constraint("Vertical", 0))
sketch10.addConstraint(Sketcher.Constraint("Horizontal", 1))
sketch10.addConstraint(Sketcher.Constraint("Vertical", 2))
sketch10.addConstraint(Sketcher.Constraint("Horizontal", 3))
sketch10.addConstraint(Sketcher.Constraint("Vertical", 5))
sketch10.addConstraint(Sketcher.Constraint("Horizontal", 7))
sketch10.addConstraint(Sketcher.Constraint("Vertical", 8))
sketch10.addConstraint(Sketcher.Constraint("Horizontal", 9))
sketch10.addConstraint(Sketcher.Constraint("PointOnObject", 1, 2, -2))
sketch10.addConstraint(Sketcher.Constraint("Perpendicular", 4, 6))
sketch10.addConstraint(Sketcher.Constraint("Horizontal", 4, 2, 5, 2))
sketch10.addConstraint(Sketcher.Constraint("Horizontal", 3, 2, 6, 2))
sketch10.addConstraint(Sketcher.Constraint("Horizontal", 1, 2, 8, 2))
sketch10.addConstraint(Sketcher.Constraint("Equal", 4, 6))
sketch10.addConstraint(Sketcher.Constraint("DistanceY", 0, 2, -1, 1, Q("36 mm")))
sketch10.addConstraint(Sketcher.Constraint("DistanceX", -1, 1, 7, 2, Q("15 mm")))
sketch10.addConstraint(Sketcher.Constraint("DistanceX", 0, 2, 3, 2, Q("1 mm")))
sketch10.addConstraint(Sketcher.Constraint("DistanceY", 0, 1, 0, 2, Q("4.85 mm")))
sketch10.addConstraint(Sketcher.Constraint("DistanceX", 1, 2, 1, 1, Q("6.855 mm")))
sketch10.addConstraint(Sketcher.Constraint("DistanceX", 7, 1, 7, 2, Q("2.855 mm")))
sketch10.setExpression("Constraints[27]", "Params.sketch10_height")
pocket5 = doc.addObject("PartDesign::Pocket", "Pocket004")
body.addObject(pocket5)
pocket5.Profile = sketch10
pocket5.Type = "ThroughAll"

sketch11 = doc.addObject("Sketcher::SketchObject", "Sketch010")
body.addObject(sketch11)
sketch11.AttachmentSupport = (doc.YZ_Plane, [""])
sketch11.MapMode = "FlatFace"
sketch11.AttachmentOffset = App.Placement(App.Vector(0, 0, 15), App.Rotation())
sketch11.addGeometry(Part.LineSegment(App.Vector(30, 3, 0), App.Vector(0, 3, 0)), False)
sketch11.addGeometry(Part.LineSegment(App.Vector(0, 3, 0), App.Vector(0, -3, 0)), False)
sketch11.addGeometry(Part.LineSegment(App.Vector(0, -3, 0), App.Vector(30, -3, 0)), False)
sketch11.addGeometry(Part.LineSegment(App.Vector(30, -3, 0), App.Vector(30, 3, 0)), False)
sketch11.addConstraint(Sketcher.Constraint("Coincident", 0, 2, 1, 1))
sketch11.addConstraint(Sketcher.Constraint("Coincident", 1, 2, 2, 1))
sketch11.addConstraint(Sketcher.Constraint("Coincident", 2, 2, 3, 1))
sketch11.addConstraint(Sketcher.Constraint("Coincident", 3, 2, 0, 1))
sketch11.addConstraint(Sketcher.Constraint("Horizontal", 0))
sketch11.addConstraint(Sketcher.Constraint("Vertical", 1))
sketch11.addConstraint(Sketcher.Constraint("Horizontal", 2))
sketch11.addConstraint(Sketcher.Constraint("Vertical", 3))
sketch11.addConstraint(Sketcher.Constraint("Symmetric", 0, 2, 1, 2, -1, 1))
sketch11.addConstraint(Sketcher.Constraint("DistanceY", 1, 2, 1, 1, Q("6 mm")))
sketch11.addConstraint(Sketcher.Constraint("DistanceX", 0, 2, 0, 1, Q("30 mm")))
sketch11.setExpression("Constraints[9]", "Params.sketch11_height")
sketch11.setExpression("Constraints[10]", "Params.sketch11_width")
pocket6 = doc.addObject("PartDesign::Pocket", "Pocket005")
body.addObject(pocket6)
pocket6.Profile = sketch11
pocket6.setExpression("Length", "Params.pocket6_length")

sketch12 = doc.addObject("Sketcher::SketchObject", "Sketch011")
body.addObject(sketch12)
sketch12.AttachmentSupport = (doc.YZ_Plane, [""])
sketch12.MapMode = "FlatFace"
sketch12.AttachmentOffset = App.Placement(App.Vector(0, 0, -15), App.Rotation())
sketch12.addGeometry(Part.LineSegment(App.Vector(30, 21, 0), App.Vector(0, 21, 0)), False)
sketch12.addGeometry(Part.LineSegment(App.Vector(0, 21, 0), App.Vector(0, 27, 0)), False)
sketch12.addGeometry(Part.LineSegment(App.Vector(0, 27, 0), App.Vector(30, 27, 0)), False)
sketch12.addGeometry(Part.LineSegment(App.Vector(30, 27, 0), App.Vector(30, 21, 0)), False)
sketch12.addConstraint(Sketcher.Constraint("Coincident", 0, 2, 1, 1))
sketch12.addConstraint(Sketcher.Constraint("Coincident", 1, 2, 2, 1))
sketch12.addConstraint(Sketcher.Constraint("Coincident", 2, 2, 3, 1))
sketch12.addConstraint(Sketcher.Constraint("Coincident", 3, 2, 0, 1))
sketch12.addConstraint(Sketcher.Constraint("Horizontal", 0))
sketch12.addConstraint(Sketcher.Constraint("Vertical", 1))
sketch12.addConstraint(Sketcher.Constraint("Horizontal", 2))
sketch12.addConstraint(Sketcher.Constraint("Vertical", 3))
sketch12.addConstraint(Sketcher.Constraint("PointOnObject", 0, 2, -2))
sketch12.addConstraint(Sketcher.Constraint("DistanceY", 1, 1, 1, 2, Q("6 mm")))
sketch12.addConstraint(Sketcher.Constraint("DistanceX", 0, 2, 0, 1, Q("30 mm")))
sketch12.addConstraint(Sketcher.Constraint("DistanceY", -1, 1, 0, 2, Q("21 mm")))
sketch12.setExpression("Constraints[9]", "Params.sketch12_height")
sketch12.setExpression("Constraints[10]", "Params.sketch12_width")
pocket7 = doc.addObject("PartDesign::Pocket", "Pocket006")
body.addObject(pocket7)
pocket7.Profile = sketch12
pocket7.setExpression("Length", "Params.pocket7_length")
pocket7.Reversed = True
doc.recompute()

chamfer = doc.addObject("PartDesign::Chamfer", "Chamfer")
body.addObject(chamfer)
chamfer.Base = (pocket7, edges_at(pocket7, [(-28, 40, -29.5)]))
chamfer.ChamferType = "Two distances"
chamfer.setExpression("Size", "Params.chamfer_size")
chamfer.setExpression("Size2", "Params.chamfer_size2")
chamfer.FlipDirection = True
doc.recompute()

chamfer2 = doc.addObject("PartDesign::Chamfer", "Chamfer001")
body.addObject(chamfer2)
chamfer2.Base = (chamfer, edges_at(chamfer, [(-28, 0, -29.5)]))
chamfer2.setExpression("Size", "Params.chamfer2_size")

sketch13 = doc.addObject("Sketcher::SketchObject", "Sketch012")
body.addObject(sketch13)
sketch13.AttachmentSupport = (doc.XZ_Plane, [""])
sketch13.MapMode = "FlatFace"
sketch13.AttachmentOffset = App.Placement(App.Vector(0, 0, -15), App.Rotation())
sketch13.addGeometry(Part.LineSegment(App.Vector(25, 45, 0), App.Vector(25, -31, 0)), False)
sketch13.addGeometry(Part.LineSegment(App.Vector(25, -31, 0), App.Vector(15, -31, 0)), False)
sketch13.addGeometry(Part.LineSegment(App.Vector(15, -31, 0), App.Vector(15, 45, 0)), False)
sketch13.addGeometry(Part.LineSegment(App.Vector(15, 45, 0), App.Vector(25, 45, 0)), False)
sketch13.addConstraint(Sketcher.Constraint("Coincident", 0, 2, 1, 1))
sketch13.addConstraint(Sketcher.Constraint("Coincident", 1, 2, 2, 1))
sketch13.addConstraint(Sketcher.Constraint("Coincident", 2, 2, 3, 1))
sketch13.addConstraint(Sketcher.Constraint("Coincident", 3, 2, 0, 1))
sketch13.addConstraint(Sketcher.Constraint("Vertical", 0))
sketch13.addConstraint(Sketcher.Constraint("Horizontal", 1))
sketch13.addConstraint(Sketcher.Constraint("Vertical", 2))
sketch13.addConstraint(Sketcher.Constraint("Horizontal", 3))
sketch13.addConstraint(Sketcher.Constraint("DistanceX", 1, 2, 1, 1, Q("10 mm")))
sketch13.addConstraint(Sketcher.Constraint("DistanceY", 0, 2, 0, 1, Q("76 mm")))
sketch13.addConstraint(Sketcher.Constraint("DistanceX", -1, 1, 0, 2, Q("25 mm")))
sketch13.addConstraint(Sketcher.Constraint("DistanceY", 0, 2, -1, 1, Q("31 mm")))
sketch13.setExpression("Constraints[8]", "Params.sketch13_width")
sketch13.setExpression("Constraints[9]", "Params.sketch13_height")
pocket8 = doc.addObject("PartDesign::Pocket", "Pocket007")
body.addObject(pocket8)
pocket8.Profile = sketch13
pocket8.Type = "ThroughAll"
pocket8.Reversed = True

sketch14 = doc.addObject("Sketcher::SketchObject", "Sketch013")
body.addObject(sketch14)
sketch14.AttachmentSupport = (doc.XZ_Plane, [""])
sketch14.MapMode = "FlatFace"
sketch14.AttachmentOffset = App.Placement(App.Vector(0, 0, -40), App.Rotation())
sketch14.addGeometry(Part.LineSegment(App.Vector(25, -42, 0), App.Vector(15, -42, 0)), False)
sketch14.addGeometry(Part.LineSegment(App.Vector(15, -42, 0), App.Vector(15, -36, 0)), False)
sketch14.addGeometry(Part.LineSegment(App.Vector(15, -36, 0), App.Vector(25, -36, 0)), False)
sketch14.addGeometry(Part.LineSegment(App.Vector(25, -36, 0), App.Vector(25, -42, 0)), False)
sketch14.addGeometry(Part.LineSegment(App.Vector(-15, -42, 0), App.Vector(-28, -42, 0)), False)
sketch14.addGeometry(Part.LineSegment(App.Vector(-28, -42, 0), App.Vector(-28, -36, 0)), False)
sketch14.addGeometry(Part.LineSegment(App.Vector(-28, -36, 0), App.Vector(-15, -36, 0)), False)
sketch14.addGeometry(Part.LineSegment(App.Vector(-15, -36, 0), App.Vector(-15, -42, 0)), False)
sketch14.addConstraint(Sketcher.Constraint("Coincident", 0, 2, 1, 1))
sketch14.addConstraint(Sketcher.Constraint("Coincident", 1, 2, 2, 1))
sketch14.addConstraint(Sketcher.Constraint("Coincident", 2, 2, 3, 1))
sketch14.addConstraint(Sketcher.Constraint("Coincident", 3, 2, 0, 1))
sketch14.addConstraint(Sketcher.Constraint("Coincident", 4, 2, 5, 1))
sketch14.addConstraint(Sketcher.Constraint("Coincident", 5, 2, 6, 1))
sketch14.addConstraint(Sketcher.Constraint("Coincident", 6, 2, 7, 1))
sketch14.addConstraint(Sketcher.Constraint("Coincident", 7, 2, 4, 1))
sketch14.addConstraint(Sketcher.Constraint("Horizontal", 0))
sketch14.addConstraint(Sketcher.Constraint("Vertical", 1))
sketch14.addConstraint(Sketcher.Constraint("Horizontal", 2))
sketch14.addConstraint(Sketcher.Constraint("Vertical", 3))
sketch14.addConstraint(Sketcher.Constraint("Horizontal", 4))
sketch14.addConstraint(Sketcher.Constraint("Vertical", 5))
sketch14.addConstraint(Sketcher.Constraint("Horizontal", 6))
sketch14.addConstraint(Sketcher.Constraint("Vertical", 7))
sketch14.addConstraint(Sketcher.Constraint("Symmetric", 1, 2, 6, 2, -2))
sketch14.addConstraint(Sketcher.Constraint("Horizontal", 3, 2, 4, 2))
sketch14.addConstraint(Sketcher.Constraint("DistanceX", 0, 2, 0, 1, Q("10 mm")))
sketch14.addConstraint(Sketcher.Constraint("DistanceX", 4, 2, 4, 1, Q("13 mm")))
sketch14.addConstraint(Sketcher.Constraint("DistanceX", -1, 1, 0, 2, Q("15 mm")))
sketch14.addConstraint(Sketcher.Constraint("DistanceY", 1, 2, -1, 1, Q("36 mm")))
sketch14.addConstraint(Sketcher.Constraint("DistanceY", 1, 1, 1, 2, Q("5.85 mm")))
sketch14.setExpression("Constraints[18]", "Params.sketch14_width")
sketch14.setExpression("Constraints[19]", "Params.sketch14_width2")
sketch14.setExpression("Constraints[22]", "Params.sketch14_height")
pocket9 = doc.addObject("PartDesign::Pocket", "Pocket008")
body.addObject(pocket9)
pocket9.Profile = sketch14
pocket9.Type = "ThroughAll"
pocket9.Reversed = True

doc.recompute()
